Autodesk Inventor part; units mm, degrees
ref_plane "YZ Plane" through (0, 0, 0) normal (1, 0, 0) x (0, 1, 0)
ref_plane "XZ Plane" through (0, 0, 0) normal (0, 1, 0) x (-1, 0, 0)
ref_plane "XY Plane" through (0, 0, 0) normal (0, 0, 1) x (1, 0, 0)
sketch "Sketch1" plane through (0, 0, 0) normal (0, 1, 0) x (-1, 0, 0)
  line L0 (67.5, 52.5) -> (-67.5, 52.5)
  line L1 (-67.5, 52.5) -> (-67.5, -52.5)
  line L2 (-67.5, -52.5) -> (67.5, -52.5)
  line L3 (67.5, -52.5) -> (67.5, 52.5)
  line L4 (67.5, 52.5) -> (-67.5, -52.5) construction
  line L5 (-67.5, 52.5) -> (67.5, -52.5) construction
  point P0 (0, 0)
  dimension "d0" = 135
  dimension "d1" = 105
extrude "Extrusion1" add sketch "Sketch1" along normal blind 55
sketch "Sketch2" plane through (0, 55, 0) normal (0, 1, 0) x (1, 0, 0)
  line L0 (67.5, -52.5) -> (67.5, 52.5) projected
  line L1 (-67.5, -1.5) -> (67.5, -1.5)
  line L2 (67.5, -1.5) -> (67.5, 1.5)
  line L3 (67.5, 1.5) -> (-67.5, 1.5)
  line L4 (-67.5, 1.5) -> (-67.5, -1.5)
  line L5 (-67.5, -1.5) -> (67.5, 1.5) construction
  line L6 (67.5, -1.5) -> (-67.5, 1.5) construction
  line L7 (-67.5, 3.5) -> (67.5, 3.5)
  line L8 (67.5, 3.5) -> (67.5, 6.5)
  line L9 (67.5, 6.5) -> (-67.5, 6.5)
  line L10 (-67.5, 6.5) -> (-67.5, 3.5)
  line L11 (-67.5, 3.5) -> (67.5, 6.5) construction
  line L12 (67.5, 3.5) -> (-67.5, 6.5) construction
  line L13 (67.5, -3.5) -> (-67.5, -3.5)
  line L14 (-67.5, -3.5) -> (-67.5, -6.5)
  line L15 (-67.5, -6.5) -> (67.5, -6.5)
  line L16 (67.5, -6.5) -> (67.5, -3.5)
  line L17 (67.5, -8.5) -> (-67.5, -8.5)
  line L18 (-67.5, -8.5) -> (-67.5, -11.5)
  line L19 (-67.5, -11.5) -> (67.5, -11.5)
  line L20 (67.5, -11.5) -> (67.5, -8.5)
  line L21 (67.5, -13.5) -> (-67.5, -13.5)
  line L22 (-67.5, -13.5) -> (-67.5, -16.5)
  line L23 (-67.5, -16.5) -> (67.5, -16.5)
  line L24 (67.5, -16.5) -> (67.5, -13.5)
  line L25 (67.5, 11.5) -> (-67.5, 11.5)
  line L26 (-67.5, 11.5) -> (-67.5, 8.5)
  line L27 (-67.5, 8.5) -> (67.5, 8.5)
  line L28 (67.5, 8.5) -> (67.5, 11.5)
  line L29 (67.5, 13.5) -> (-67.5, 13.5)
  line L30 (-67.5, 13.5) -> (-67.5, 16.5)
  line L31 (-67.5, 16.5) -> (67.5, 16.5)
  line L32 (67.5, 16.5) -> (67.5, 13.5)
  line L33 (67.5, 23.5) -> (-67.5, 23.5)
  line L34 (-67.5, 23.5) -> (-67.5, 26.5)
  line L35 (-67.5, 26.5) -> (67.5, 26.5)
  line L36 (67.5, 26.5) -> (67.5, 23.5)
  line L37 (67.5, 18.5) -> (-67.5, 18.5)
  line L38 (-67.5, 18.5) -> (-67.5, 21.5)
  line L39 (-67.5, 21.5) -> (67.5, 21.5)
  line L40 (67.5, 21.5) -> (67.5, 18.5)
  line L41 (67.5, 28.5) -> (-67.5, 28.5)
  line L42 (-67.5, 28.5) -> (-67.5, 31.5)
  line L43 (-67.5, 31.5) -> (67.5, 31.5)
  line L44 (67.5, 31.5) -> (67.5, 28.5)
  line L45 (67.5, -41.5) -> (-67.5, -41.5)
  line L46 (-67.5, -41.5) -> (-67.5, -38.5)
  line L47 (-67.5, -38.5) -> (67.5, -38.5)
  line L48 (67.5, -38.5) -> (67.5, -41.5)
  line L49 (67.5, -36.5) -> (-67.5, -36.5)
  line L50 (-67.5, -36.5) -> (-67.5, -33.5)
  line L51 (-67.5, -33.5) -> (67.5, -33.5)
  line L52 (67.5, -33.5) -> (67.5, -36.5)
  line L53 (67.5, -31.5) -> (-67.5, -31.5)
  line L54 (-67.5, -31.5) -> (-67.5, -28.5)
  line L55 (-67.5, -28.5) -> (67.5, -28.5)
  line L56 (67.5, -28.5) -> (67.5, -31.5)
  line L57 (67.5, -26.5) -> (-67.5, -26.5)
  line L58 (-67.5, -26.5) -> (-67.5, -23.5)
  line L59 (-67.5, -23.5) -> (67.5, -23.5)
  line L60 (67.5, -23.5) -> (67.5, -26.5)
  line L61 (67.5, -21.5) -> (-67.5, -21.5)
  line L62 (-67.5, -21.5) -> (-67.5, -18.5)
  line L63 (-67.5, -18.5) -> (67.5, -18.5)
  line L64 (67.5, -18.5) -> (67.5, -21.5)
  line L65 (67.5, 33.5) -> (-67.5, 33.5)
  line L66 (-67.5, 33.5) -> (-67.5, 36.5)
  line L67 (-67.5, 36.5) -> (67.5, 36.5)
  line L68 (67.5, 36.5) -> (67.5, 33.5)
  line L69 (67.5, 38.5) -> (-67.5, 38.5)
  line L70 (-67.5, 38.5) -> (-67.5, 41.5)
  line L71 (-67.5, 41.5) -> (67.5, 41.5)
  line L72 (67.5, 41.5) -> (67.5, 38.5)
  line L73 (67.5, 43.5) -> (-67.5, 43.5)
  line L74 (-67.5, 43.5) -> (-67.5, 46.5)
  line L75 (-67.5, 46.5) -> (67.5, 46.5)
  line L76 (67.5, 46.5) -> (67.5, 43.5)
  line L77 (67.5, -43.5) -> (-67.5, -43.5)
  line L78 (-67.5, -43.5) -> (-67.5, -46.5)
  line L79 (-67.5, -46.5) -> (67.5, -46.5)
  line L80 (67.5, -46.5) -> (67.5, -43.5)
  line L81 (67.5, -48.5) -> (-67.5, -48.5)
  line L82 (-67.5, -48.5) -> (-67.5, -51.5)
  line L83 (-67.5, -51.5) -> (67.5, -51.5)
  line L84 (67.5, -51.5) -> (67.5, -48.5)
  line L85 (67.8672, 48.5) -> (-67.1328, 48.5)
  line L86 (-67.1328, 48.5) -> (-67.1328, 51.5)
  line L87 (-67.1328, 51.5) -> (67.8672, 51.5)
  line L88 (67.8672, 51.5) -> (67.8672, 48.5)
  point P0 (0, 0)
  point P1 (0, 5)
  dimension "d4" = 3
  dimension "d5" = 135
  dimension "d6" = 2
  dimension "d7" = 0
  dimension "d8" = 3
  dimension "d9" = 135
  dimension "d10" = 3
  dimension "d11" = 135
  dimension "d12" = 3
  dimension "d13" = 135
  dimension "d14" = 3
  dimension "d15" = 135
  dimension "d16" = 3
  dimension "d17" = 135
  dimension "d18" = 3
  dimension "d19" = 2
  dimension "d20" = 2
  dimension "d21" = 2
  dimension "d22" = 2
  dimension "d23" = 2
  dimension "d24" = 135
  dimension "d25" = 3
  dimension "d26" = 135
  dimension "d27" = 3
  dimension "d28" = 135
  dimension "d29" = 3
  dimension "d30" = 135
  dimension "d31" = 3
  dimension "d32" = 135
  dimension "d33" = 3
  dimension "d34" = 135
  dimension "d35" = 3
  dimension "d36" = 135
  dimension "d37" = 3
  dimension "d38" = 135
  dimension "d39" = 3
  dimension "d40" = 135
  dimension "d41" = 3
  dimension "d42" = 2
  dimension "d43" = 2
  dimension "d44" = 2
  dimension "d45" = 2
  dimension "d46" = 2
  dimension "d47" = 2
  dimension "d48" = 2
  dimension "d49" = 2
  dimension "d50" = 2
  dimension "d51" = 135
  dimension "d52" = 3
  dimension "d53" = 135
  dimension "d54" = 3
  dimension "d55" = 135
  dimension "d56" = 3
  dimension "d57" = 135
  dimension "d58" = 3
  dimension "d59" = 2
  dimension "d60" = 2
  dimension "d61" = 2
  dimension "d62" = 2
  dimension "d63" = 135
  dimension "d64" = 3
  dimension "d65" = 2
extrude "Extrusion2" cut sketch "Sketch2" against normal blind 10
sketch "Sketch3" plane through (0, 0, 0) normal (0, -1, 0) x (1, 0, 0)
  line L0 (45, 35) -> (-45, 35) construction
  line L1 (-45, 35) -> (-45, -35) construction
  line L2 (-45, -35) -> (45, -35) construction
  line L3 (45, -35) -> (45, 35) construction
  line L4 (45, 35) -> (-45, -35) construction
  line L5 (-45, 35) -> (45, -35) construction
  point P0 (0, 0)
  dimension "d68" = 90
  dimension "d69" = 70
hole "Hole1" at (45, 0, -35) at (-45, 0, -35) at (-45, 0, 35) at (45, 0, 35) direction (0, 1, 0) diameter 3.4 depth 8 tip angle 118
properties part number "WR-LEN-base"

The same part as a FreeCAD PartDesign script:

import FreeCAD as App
import Part
import Sketcher

V = App.Vector
Q = App.Units.Quantity


def add_polygon(sketch, points):
    """Adds a closed chain of lines whose ends are joined by coincident constraints."""
    first, n = sketch.GeometryCount, len(points)
    for a, b in zip(points, points[1:] + points[:1]):
        sketch.addGeometry(Part.LineSegment(App.Vector(*a, 0), App.Vector(*b, 0)), False)
    for i in range(n):
        sketch.addConstraint(Sketcher.Constraint("Coincident", first + i, 2, first + (i + 1) % n, 1))

doc = App.newDocument("Part")
body = doc.addObject("PartDesign::Body", "Body")

# Sketch on XZ plane
sketch1 = body.newObject("Sketcher::SketchObject", "Sketch")
sketch1.AttachmentSupport = (doc.getObject("XZ_Plane"), [""])
sketch1.MapMode = "FlatFace"
add_polygon(sketch1, [(-68, -52), (-68, 52), (68, 52), (68, -52)])  # lines 0-3
sketch1.addConstraint([
    Sketcher.Constraint("Vertical", 0),
    Sketcher.Constraint("Horizontal", 1),
    Sketcher.Constraint("Vertical", 2),
    Sketcher.Constraint("Horizontal", 3),
    Sketcher.Constraint("Symmetric", 0, 2, 2, 2, -1, 1),
    Sketcher.Constraint("DistanceX", 1, 1, 1, 2, Q("135 mm")),
    Sketcher.Constraint("DistanceY", 0, 1, 0, 2, Q("105 mm")),
])
pad1 = body.newObject("PartDesign::Pad", "Pad")
pad1.Profile = sketch1
pad1.Length = 55
pad1.Reversed = True

# Sketch on XZ plane
sketch2 = body.newObject("Sketcher::SketchObject", "Sketch001")
sketch2.AttachmentSupport = (doc.getObject("XZ_Plane"), [""])
sketch2.MapMode = "FlatFace"
sketch2.AttachmentOffset = App.Placement(V(0, 0, -55), App.Rotation())
add_polygon(sketch2, [(-67.5, 51.5), (67.5, 51.5), (67.5, 48.5), (-67.5, 48.5)])  # lines 0-3
add_polygon(sketch2, [(-67.1, -48.5), (67.9, -48.5), (67.9, -51.5), (-67.1, -51.5)])  # lines 4-7
add_polygon(sketch2, [(-67.5, -43.5), (67.5, -43.5), (67.5, -46.5), (-67.5, -46.5)])  # lines 8-11
add_polygon(sketch2, [(-67.5, -38.5), (67.5, -38.5), (67.5, -41.5), (-67.5, -41.5)])  # lines 12-15
add_polygon(sketch2, [(-67.5, -33.5), (67.5, -33.5), (67.5, -36.5), (-67.5, -36.5)])  # lines 16-19
add_polygon(sketch2, [(-67.5, -28.5), (67.5, -28.5), (67.5, -31.5), (-67.5, -31.5)])  # lines 20-23
add_polygon(sketch2, [(-67.5, -23.5), (67.5, -23.5), (67.5, -26.5), (-67.5, -26.5)])  # lines 24-27
add_polygon(sketch2, [(-67.5, -18.5), (67.5, -18.5), (67.5, -21.5), (-67.5, -21.5)])  # lines 28-31
add_polygon(sketch2, [(-67.5, -13.5), (67.5, -13.5), (67.5, -16.5), (-67.5, -16.5)])  # lines 32-35
add_polygon(sketch2, [(-67.5, -8.5), (67.5, -8.5), (67.5, -11.5), (-67.5, -11.5)])  # lines 36-39
add_polygon(sketch2, [(-67.5, -3.5), (67.5, -3.5), (67.5, -6.5), (-67.5, -6.5)])  # lines 40-43
add_polygon(sketch2, [(-67.5, 1.5), (67.5, 1.5), (67.5, -1.5), (-67.5, -1.5)])  # lines 44-47
add_polygon(sketch2, [(-67.5, 6.5), (67.5, 6.5), (67.5, 3.5), (-67.5, 3.5)])  # lines 48-51
add_polygon(sketch2, [(-67.5, 11.5), (67.5, 11.5), (67.5, 8.5), (-67.5, 8.5)])  # lines 52-55
add_polygon(sketch2, [(-67.5, 16.5), (67.5, 16.5), (67.5, 13.5), (-67.5, 13.5)])  # lines 56-59
add_polygon(sketch2, [(-67.5, 21.5), (67.5, 21.5), (67.5, 18.5), (-67.5, 18.5)])  # lines 60-63
add_polygon(sketch2, [(-67.5, 26.5), (67.5, 26.5), (67.5, 23.5), (-67.5, 23.5)])  # lines 64-67
add_polygon(sketch2, [(-67.5, 31.5), (67.5, 31.5), (67.5, 28.5), (-67.5, 28.5)])  # lines 68-71
add_polygon(sketch2, [(-67.5, 36.5), (67.5, 36.5), (67.5, 33.5), (-67.5, 33.5)])  # lines 72-75
add_polygon(sketch2, [(-67.5, 41.5), (67.5, 41.5), (67.5, 38.5), (-67.5, 38.5)])  # lines 76-79
add_polygon(sketch2, [(-67.5, 46.5), (67.5, 46.5), (67.5, 43.5), (-67.5, 43.5)])  # lines 80-83
sketch2.addConstraint([
    Sketcher.Constraint("Horizontal", 0),
    Sketcher.Constraint("Vertical", 1),
    Sketcher.Constraint("Horizontal", 2),
    Sketcher.Constraint("Vertical", 3),
    Sketcher.Constraint("Horizontal", 4),
    Sketcher.Constraint("Vertical", 5),
    Sketcher.Constraint("Horizontal", 6),
    Sketcher.Constraint("Vertical", 7),
    Sketcher.Constraint("Horizontal", 8),
    Sketcher.Constraint("Vertical", 9),
    Sketcher.Constraint("Horizontal", 10),
    Sketcher.Constraint("Vertical", 11),
    Sketcher.Constraint("Horizontal", 12),
    Sketcher.Constraint("Vertical", 13),
    Sketcher.Constraint("Horizontal", 14),
    Sketcher.Constraint("Vertical", 15),
    Sketcher.Constraint("Horizontal", 16),
    Sketcher.Constraint("Vertical", 17),
    Sketcher.Constraint("Horizontal", 18),
    Sketcher.Constraint("Vertical", 19),
    Sketcher.Constraint("Horizontal", 20),
    Sketcher.Constraint("Vertical", 21),
    Sketcher.Constraint("Horizontal", 22),
    Sketcher.Constraint("Vertical", 23),
    Sketcher.Constraint("Horizontal", 24),
    Sketcher.Constraint("Vertical", 25),
    Sketcher.Constraint("Horizontal", 26),
    Sketcher.Constraint("Vertical", 27),
    Sketcher.Constraint("Horizontal", 28),
    Sketcher.Constraint("Vertical", 29),
    Sketcher.Constraint("Horizontal", 30),
    Sketcher.Constraint("Vertical", 31),
    Sketcher.Constraint("Horizontal", 32),
    Sketcher.Constraint("Vertical", 33),
    Sketcher.Constraint("Horizontal", 34),
    Sketcher.Constraint("Vertical", 35),
    Sketcher.Constraint("Horizontal", 36),
    Sketcher.Constraint("Vertical", 37),
    Sketcher.Constraint("Horizontal", 38),
    Sketcher.Constraint("Vertical", 39),
    Sketcher.Constraint("Horizontal", 40),
    Sketcher.Constraint("Vertical", 41),
    Sketcher.Constraint("Horizontal", 42),
    Sketcher.Constraint("Vertical", 43),
    Sketcher.Constraint("Horizontal", 44),
    Sketcher.Constraint("Vertical", 45),
    Sketcher.Constraint("Horizontal", 46),
    Sketcher.Constraint("Vertical", 47),
    Sketcher.Constraint("Horizontal", 48),
    Sketcher.Constraint("Vertical", 49),
    Sketcher.Constraint("Horizontal", 50),
    Sketcher.Constraint("Vertical", 51),
    Sketcher.Constraint("Horizontal", 52),
    Sketcher.Constraint("Vertical", 53),
    Sketcher.Constraint("Horizontal", 54),
    Sketcher.Constraint("Vertical", 55),
    Sketcher.Constraint("Horizontal", 56),
    Sketcher.Constraint("Vertical", 57),
    Sketcher.Constraint("Horizontal", 58),
    Sketcher.Constraint("Vertical", 59),
    Sketcher.Constraint("Horizontal", 60),
    Sketcher.Constraint("Vertical", 61),
    Sketcher.Constraint("Horizontal", 62),
    Sketcher.Constraint("Vertical", 63),
    Sketcher.Constraint("Horizontal", 64),
    Sketcher.Constraint("Vertical", 65),
    Sketcher.Constraint("Horizontal", 66),
    Sketcher.Constraint("Vertical", 67),
    Sketcher.Constraint("Horizontal", 68),
    Sketcher.Constraint("Vertical", 69),
    Sketcher.Constraint("Horizontal", 70),
    Sketcher.Constraint("Vertical", 71),
    Sketcher.Constraint("Horizontal", 72),
    Sketcher.Constraint("Vertical", 73),
    Sketcher.Constraint("Horizontal", 74),
    Sketcher.Constraint("Vertical", 75),
    Sketcher.Constraint("Horizontal", 76),
    Sketcher.Constraint("Vertical", 77),
    Sketcher.Constraint("Horizontal", 78),
    Sketcher.Constraint("Vertical", 79),
    Sketcher.Constraint("Horizontal", 80),
    Sketcher.Constraint("Vertical", 81),
    Sketcher.Constraint("Horizontal", 82),
    Sketcher.Constraint("Vertical", 83),
    Sketcher.Constraint("Symmetric", 44, 2, 46, 2, -1, 1),
    Sketcher.Constraint("Symmetric", 42, 2, 48, 2, -1, 1),
    Sketcher.Constraint("Symmetric", 40, 2, 50, 2, -1, 1),
    Sketcher.Constraint("Symmetric", 38, 2, 52, 2, -1, 1),
    Sketcher.Constraint("Symmetric", 36, 2, 54, 2, -1, 1),
    Sketcher.Constraint("Symmetric", 34, 2, 56, 2, -1, 1),
    Sketcher.Constraint("Symmetric", 32, 2, 58, 2, -1, 1),
    Sketcher.Constraint("Symmetric", 30, 2, 60, 2, -1, 1),
    Sketcher.Constraint("Symmetric", 28, 2, 62, 2, -1, 1),
    Sketcher.Constraint("Symmetric", 26, 2, 64, 2, -1, 1),
    Sketcher.Constraint("Symmetric", 24, 2, 66, 2, -1, 1),
    Sketcher.Constraint("Symmetric", 22, 2, 68, 2, -1, 1),
    Sketcher.Constraint("Symmetric", 20, 2, 70, 2, -1, 1),
    Sketcher.Constraint("Symmetric", 18, 2, 72, 2, -1, 1),
    Sketcher.Constraint("Symmetric", 16, 2, 74, 2, -1, 1),
    Sketcher.Constraint("Symmetric", 14, 2, 76, 2, -1, 1),
    Sketcher.Constraint("Symmetric", 12, 2, 78, 2, -1, 1),
    Sketcher.Constraint("Symmetric", 10, 2, 80, 2, -1, 1),
    Sketcher.Constraint("Symmetric", 8, 2, 82, 2, -1, 1),
    Sketcher.Constraint("Vertical", 1, 2, 8, 2),
    Sketcher.Constraint("Vertical", 3, 2, 10, 2),
    Sketcher.Constraint("Vertical", 9, 2, 12, 2),
    Sketcher.Constraint("Vertical", 11, 2, 14, 2),
    Sketcher.Constraint("Vertical", 13, 2, 16, 2),
    Sketcher.Constraint("Vertical", 15, 2, 18, 2),
    Sketcher.Constraint("Vertical", 17, 2, 20, 2),
    Sketcher.Constraint("Vertical", 19, 2, 22, 2),
    Sketcher.Constraint("Vertical", 21, 2, 24, 2),
    Sketcher.Constraint("Vertical", 23, 2, 26, 2),
    Sketcher.Constraint("Vertical", 25, 2, 28, 2),
    Sketcher.Constraint("Vertical", 27, 2, 30, 2),
    Sketcher.Constraint("Vertical", 29, 2, 32, 2),
    Sketcher.Constraint("Vertical", 31, 2, 34, 2),
    Sketcher.Constraint("Vertical", 33, 2, 36, 2),
    Sketcher.Constraint("Vertical", 35, 2, 38, 2),
    Sketcher.Constraint("Vertical", 37, 2, 40, 2),
    Sketcher.Constraint("Vertical", 39, 2, 42, 2),
    Sketcher.Constraint("Vertical", 41, 2, 44, 2),
    Sketcher.Constraint("Vertical", 43, 2, 46, 2),
    Sketcher.Constraint("Equal", 2, 4),
    Sketcher.Constraint("Equal", 3, 5),
    Sketcher.Constraint("Equal", 7, 9),
    Sketcher.Constraint("Equal", 11, 13),
    Sketcher.Constraint("Equal", 15, 17),
    Sketcher.Constraint("Equal", 19, 21),
    Sketcher.Constraint("Equal", 23, 25),
    Sketcher.Constraint("Equal", 27, 29),
    Sketcher.Constraint("Equal", 31, 33),
    Sketcher.Constraint("Equal", 35, 37),
    Sketcher.Constraint("Equal", 39, 41),
    Sketcher.Constraint("Equal", 43, 45),
    Sketcher.Constraint("DistanceX", 0, 1, 0, 2, Q("135 mm")),
    Sketcher.Constraint("DistanceY", 1, 2, 1, 1, Q("3 mm")),
    Sketcher.Constraint("DistanceY", -1, 1, 0, 2, Q("51.5 mm")),
    Sketcher.Constraint("DistanceY", 4, 2, -1, 1, Q("48.5 mm")),
    Sketcher.Constraint("DistanceY", 8, 2, -1, 1, Q("43.5 mm")),
    Sketcher.Constraint("DistanceY", 12, 2, -1, 1, Q("38.5 mm")),
    Sketcher.Constraint("DistanceY", 16, 2, -1, 1, Q("33.5 mm")),
    Sketcher.Constraint("DistanceY", 20, 2, -1, 1, Q("28.5 mm")),
    Sketcher.Constraint("DistanceY", 24, 2, -1, 1, Q("23.5 mm")),
    Sketcher.Constraint("DistanceY", 28, 2, -1, 1, Q("18.5 mm")),
    Sketcher.Constraint("DistanceY", 32, 2, -1, 1, Q("13.5 mm")),
    Sketcher.Constraint("DistanceY", 36, 2, -1, 1, Q("8.5 mm")),
    Sketcher.Constraint("DistanceY", 40, 2, -1, 1, Q("3.5 mm")),
    Sketcher.Constraint("DistanceX", -1, 1, 4, 2, Q("67.8672 mm")),
])
pocket1 = body.newObject("PartDesign::Pocket", "Pocket")
pocket1.Profile = sketch2
pocket1.Length = 10
pocket1.Reversed = True

# Sketch on XZ plane
sketch3 = body.newObject("Sketcher::SketchObject", "Sketch002")
sketch3.AttachmentSupport = (doc.getObject("XZ_Plane"), [""])
sketch3.MapMode = "FlatFace"
sketch3.addGeometry([
    Part.Circle(V(45, -35, 0), V(0, 0, 1), 1.7),
    Part.Circle(V(-45, -35, 0), V(0, 0, 1), 1.7),
    Part.Circle(V(-45, 35, 0), V(0, 0, 1), 1.7),
    Part.Circle(V(45, 35, 0), V(0, 0, 1), 1.7),
], False)
sketch3.addConstraint([
    Sketcher.Constraint("Equal", 0, 1),
    Sketcher.Constraint("Equal", 1, 2),
    Sketcher.Constraint("Equal", 2, 3),
    Sketcher.Constraint("Symmetric", 0, 3, 2, 3, -1, 1),
    Sketcher.Constraint("Symmetric", 1, 3, 3, 3, -1, 1),
    Sketcher.Constraint("Symmetric", 0, 3, 1, 3, -2),
    Sketcher.Constraint("Diameter", 0, Q("3.4 mm")),
    Sketcher.Constraint("DistanceX", -1, 1, 0, 3, Q("45 mm")),
    Sketcher.Constraint("DistanceY", 0, 3, -1, 1, Q("35 mm")),
])
doc.recompute()
hole = body.newObject("PartDesign::Hole", "Hole")
hole.Profile = sketch3
hole.ThreadType = "None"
hole.Diameter = 3.4
hole.DepthType = "Dimension"
hole.Depth = 8
hole.DrillPoint = "Angled"
hole.DrillPointAngle = 118

doc.recompute()
